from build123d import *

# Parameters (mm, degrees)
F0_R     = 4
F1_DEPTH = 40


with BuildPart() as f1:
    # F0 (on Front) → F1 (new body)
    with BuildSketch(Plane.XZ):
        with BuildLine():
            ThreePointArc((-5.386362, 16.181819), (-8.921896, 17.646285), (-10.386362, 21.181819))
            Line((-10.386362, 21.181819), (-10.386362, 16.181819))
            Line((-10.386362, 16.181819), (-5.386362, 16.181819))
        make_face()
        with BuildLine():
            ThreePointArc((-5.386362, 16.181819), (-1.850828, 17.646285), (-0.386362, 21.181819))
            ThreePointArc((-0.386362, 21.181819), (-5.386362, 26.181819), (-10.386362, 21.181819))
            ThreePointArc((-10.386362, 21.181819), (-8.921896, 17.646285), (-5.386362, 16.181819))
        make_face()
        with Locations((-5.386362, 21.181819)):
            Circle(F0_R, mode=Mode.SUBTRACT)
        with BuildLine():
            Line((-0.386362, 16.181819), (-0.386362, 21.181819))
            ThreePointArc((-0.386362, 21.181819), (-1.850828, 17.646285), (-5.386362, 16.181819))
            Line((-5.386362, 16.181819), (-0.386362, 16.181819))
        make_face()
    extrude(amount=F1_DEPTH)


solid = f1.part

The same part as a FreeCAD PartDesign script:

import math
import FreeCAD as App
import Part
import Sketcher

V = App.Vector
Q = App.Units.Quantity

doc = App.newDocument("Part")
body = doc.addObject("PartDesign::Body", "Body")

# Sketch on XZ plane
sketch1 = doc.addObject("Sketcher::SketchObject", "Sketch")
body.addObject(sketch1)
sketch1.AttachmentSupport = (doc.XZ_Plane, [""])
sketch1.MapMode = "FlatFace"
sketch1.addGeometry([
    Part.LineSegment(V(-10.4, 21.2, 0), V(-10.4, 16.2, 0)),  # 0
    Part.LineSegment(V(-10.4, 16.2, 0), V(-0.4, 16.2, 0)),  # 1
    Part.LineSegment(V(-0.4, 16.2, 0), V(-0.4, 21.2, 0)),  # 2
    Part.ArcOfCircle(Part.Circle(V(-5.4, 21.2, 0), V(0, 0, 1), 5), math.radians(0), math.radians(180)),  # 3
    Part.Circle(V(-5.4, 21.2, 0), V(0, 0, 1), 4),  # 4
], False)
sketch1.addConstraint([
    Sketcher.Constraint("Coincident", 0, 2, 1, 1),
    Sketcher.Constraint("Coincident", 1, 2, 2, 1),
    Sketcher.Constraint("Tangent", 2, 2, 3, 1),
    Sketcher.Constraint("Tangent", 3, 2, 0, 1),
    Sketcher.Constraint("Vertical", 0),
    Sketcher.Constraint("Horizontal", 1),
    Sketcher.Constraint("Vertical", 2),
    Sketcher.Constraint("Coincident", 4, 3, 3, 3),
    Sketcher.Constraint("Diameter", 4, Q("8 mm")),
    Sketcher.Constraint("Radius", 3, Q("5 mm")),
    Sketcher.Constraint("DistanceY", 0, 2, 0, 1, Q("5 mm")),
    Sketcher.Constraint("DistanceY", -1, 1, 3, 3, Q("21.181819 mm")),
    Sketcher.Constraint("DistanceX", 3, 3, -1, 1, Q("5.386362 mm")),
])
pad1 = doc.addObject("PartDesign::Pad", "Pad")
body.addObject(pad1)
pad1.Profile = sketch1
pad1.Length = 40

doc.recompute()
